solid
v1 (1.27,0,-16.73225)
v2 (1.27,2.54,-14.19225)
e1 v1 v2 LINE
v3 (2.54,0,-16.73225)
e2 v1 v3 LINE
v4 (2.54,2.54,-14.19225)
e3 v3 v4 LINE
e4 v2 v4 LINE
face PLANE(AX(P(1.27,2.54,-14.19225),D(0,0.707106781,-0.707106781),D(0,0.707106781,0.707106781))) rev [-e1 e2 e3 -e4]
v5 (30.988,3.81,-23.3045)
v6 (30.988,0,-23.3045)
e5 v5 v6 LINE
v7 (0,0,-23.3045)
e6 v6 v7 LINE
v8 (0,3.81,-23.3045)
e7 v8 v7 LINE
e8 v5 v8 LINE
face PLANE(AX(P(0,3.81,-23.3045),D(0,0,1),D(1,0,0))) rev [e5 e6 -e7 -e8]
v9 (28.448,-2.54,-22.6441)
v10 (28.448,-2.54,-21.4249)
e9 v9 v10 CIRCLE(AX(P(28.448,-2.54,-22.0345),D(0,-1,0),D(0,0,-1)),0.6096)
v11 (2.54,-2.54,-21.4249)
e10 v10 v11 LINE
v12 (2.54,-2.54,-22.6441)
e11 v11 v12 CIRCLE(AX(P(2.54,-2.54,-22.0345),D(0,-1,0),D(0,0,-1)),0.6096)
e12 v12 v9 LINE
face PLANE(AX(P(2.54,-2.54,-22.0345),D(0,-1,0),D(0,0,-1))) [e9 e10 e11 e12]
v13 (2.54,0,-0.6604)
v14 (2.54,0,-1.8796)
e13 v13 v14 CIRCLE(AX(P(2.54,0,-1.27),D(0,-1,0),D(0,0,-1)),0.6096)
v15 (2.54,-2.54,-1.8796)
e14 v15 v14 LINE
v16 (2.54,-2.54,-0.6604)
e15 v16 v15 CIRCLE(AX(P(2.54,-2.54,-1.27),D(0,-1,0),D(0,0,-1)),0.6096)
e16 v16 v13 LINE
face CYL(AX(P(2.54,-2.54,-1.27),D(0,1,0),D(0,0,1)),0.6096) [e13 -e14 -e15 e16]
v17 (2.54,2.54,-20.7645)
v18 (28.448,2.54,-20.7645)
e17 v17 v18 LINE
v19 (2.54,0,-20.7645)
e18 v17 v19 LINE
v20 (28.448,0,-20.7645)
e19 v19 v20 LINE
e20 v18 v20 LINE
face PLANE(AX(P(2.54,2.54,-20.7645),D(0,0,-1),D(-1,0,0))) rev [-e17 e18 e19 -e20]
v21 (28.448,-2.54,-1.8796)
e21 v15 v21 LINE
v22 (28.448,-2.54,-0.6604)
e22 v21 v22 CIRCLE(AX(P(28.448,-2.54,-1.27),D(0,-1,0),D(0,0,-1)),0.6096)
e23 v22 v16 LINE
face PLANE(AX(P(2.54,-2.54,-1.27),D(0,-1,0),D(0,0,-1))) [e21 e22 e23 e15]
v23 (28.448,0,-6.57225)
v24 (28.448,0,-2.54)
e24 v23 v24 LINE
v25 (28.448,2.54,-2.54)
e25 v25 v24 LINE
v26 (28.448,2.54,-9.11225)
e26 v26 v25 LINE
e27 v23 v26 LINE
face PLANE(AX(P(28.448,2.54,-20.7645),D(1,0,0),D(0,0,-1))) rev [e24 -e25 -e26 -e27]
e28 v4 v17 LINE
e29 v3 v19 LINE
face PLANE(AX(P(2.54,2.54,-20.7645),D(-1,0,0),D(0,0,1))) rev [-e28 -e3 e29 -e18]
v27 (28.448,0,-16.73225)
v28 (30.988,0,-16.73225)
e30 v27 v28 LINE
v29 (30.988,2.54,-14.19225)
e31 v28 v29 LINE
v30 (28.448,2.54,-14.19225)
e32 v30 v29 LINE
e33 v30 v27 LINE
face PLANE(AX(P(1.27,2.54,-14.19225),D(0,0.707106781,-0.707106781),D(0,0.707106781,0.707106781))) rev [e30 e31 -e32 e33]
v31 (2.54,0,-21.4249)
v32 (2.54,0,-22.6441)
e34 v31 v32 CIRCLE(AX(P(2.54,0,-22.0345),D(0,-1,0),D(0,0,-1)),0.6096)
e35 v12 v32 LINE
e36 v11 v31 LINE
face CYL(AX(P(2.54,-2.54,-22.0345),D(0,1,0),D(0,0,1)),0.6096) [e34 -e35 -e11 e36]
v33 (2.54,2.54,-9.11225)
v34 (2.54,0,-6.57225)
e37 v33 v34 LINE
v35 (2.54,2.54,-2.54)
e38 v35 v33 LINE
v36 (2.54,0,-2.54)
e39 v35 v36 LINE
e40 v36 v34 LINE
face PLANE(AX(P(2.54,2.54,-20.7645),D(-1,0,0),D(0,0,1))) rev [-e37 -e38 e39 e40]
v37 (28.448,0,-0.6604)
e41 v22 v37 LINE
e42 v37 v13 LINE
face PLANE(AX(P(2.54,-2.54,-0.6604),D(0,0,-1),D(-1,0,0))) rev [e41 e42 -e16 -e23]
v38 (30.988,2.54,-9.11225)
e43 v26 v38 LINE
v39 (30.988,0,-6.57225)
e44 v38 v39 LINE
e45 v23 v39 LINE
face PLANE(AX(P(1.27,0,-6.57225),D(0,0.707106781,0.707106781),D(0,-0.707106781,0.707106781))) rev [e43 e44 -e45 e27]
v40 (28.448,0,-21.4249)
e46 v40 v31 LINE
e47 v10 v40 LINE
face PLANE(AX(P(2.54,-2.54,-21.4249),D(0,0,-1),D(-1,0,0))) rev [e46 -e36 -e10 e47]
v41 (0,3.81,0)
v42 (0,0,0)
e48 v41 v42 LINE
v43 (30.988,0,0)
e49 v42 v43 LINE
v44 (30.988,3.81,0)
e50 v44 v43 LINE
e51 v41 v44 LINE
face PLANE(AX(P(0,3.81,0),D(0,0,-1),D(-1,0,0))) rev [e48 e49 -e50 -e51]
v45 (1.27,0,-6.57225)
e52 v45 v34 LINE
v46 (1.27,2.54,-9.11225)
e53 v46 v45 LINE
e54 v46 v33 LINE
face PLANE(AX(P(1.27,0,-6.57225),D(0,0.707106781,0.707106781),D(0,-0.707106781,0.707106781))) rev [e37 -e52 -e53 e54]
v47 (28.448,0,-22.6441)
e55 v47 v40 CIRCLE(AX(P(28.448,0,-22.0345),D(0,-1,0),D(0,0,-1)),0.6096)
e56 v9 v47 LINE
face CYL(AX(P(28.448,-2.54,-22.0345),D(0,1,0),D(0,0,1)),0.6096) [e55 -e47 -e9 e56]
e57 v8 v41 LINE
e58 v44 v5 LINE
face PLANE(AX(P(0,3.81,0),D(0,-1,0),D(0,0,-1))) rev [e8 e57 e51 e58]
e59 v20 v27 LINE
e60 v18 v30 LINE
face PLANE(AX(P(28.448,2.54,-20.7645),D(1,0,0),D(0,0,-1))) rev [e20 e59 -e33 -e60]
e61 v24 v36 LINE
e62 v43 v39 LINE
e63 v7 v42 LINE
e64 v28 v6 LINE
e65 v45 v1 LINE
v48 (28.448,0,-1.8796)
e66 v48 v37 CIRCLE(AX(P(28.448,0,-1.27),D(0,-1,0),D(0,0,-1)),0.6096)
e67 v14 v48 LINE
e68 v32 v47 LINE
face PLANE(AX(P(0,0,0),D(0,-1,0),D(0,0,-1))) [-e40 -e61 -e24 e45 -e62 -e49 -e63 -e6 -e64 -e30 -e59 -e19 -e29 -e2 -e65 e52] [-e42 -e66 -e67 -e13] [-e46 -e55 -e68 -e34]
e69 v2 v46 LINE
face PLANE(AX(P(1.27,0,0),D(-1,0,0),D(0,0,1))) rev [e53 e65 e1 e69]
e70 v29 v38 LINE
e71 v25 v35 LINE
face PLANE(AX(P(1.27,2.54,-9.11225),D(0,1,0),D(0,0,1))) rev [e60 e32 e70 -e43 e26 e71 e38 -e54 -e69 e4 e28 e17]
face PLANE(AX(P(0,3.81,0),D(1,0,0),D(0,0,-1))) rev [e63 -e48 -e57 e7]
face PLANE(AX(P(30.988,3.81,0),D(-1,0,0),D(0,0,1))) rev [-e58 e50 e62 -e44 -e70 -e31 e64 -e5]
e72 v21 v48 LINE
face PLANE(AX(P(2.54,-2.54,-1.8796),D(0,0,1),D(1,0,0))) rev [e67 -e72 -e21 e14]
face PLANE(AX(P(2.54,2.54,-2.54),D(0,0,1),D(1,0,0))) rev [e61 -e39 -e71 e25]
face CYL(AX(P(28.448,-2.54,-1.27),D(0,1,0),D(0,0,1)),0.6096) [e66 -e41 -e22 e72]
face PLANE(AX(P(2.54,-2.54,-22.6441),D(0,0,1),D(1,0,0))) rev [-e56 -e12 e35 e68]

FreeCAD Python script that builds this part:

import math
import FreeCAD as App
import Part
import Sketcher

V = App.Vector
Q = App.Units.Quantity


def add_polygon(sketch, points):
    """Adds a closed chain of lines whose ends are joined by coincident constraints."""
    first, n = sketch.GeometryCount, len(points)
    for a, b in zip(points, points[1:] + points[:1]):
        sketch.addGeometry(Part.LineSegment(App.Vector(*a, 0), App.Vector(*b, 0)), False)
    for i in range(n):
        sketch.addConstraint(Sketcher.Constraint("Coincident", first + i, 2, first + (i + 1) % n, 1))

doc = App.newDocument("Part")
body = doc.addObject("PartDesign::Body", "Body")

# Sketch on XZ plane
sketch1 = body.newObject("Sketcher::SketchObject", "Sketch")
sketch1.AttachmentSupport = (doc.getObject("XZ_Plane"), [""])
sketch1.MapMode = "FlatFace"
add_polygon(sketch1, [(0, -23.3045), (0, 0), (30.988, 0), (30.988, -23.3045)])  # lines 0-3
sketch1.addConstraint(Sketcher.Constraint("Vertical", 0))
sketch1.addConstraint(Sketcher.Constraint("Horizontal", 1))
sketch1.addConstraint(Sketcher.Constraint("Vertical", 2))
sketch1.addConstraint(Sketcher.Constraint("Horizontal", 3))
sketch1.addConstraint(Sketcher.Constraint("Coincident", 0, 2, -1, 1))
sketch1.addConstraint(Sketcher.Constraint("DistanceX", 1, 1, 1, 2, Q("1.22 in")))
sketch1.addConstraint(Sketcher.Constraint("DistanceY", 0, 1, 0, 2, Q("0.9175 in")))
pad1 = body.newObject("PartDesign::Pad", "Pad")
pad1.Profile = sketch1
pad1.Length = Q("0.15 in")
pad1.Reversed = True

# Sketch on YZ plane
sketch2 = body.newObject("Sketcher::SketchObject", "Sketch001")
sketch2.AttachmentSupport = (doc.getObject("YZ_Plane"), [""])
sketch2.MapMode = "FlatFace"
sketch2.AttachmentOffset = App.Placement(V(0, 0, 1.22 * 25.4), App.Rotation())
add_polygon(sketch2, [(2.54, -9.11225), (0, -6.57225), (0, -16.73225), (2.54, -14.19225)])  # lines 0-3
sketch2.addConstraint(Sketcher.Constraint("Vertical", 1))
sketch2.addConstraint(Sketcher.Constraint("Vertical", 3))
sketch2.addConstraint(Sketcher.Constraint("PointOnObject", 0, 2, -2))
sketch2.addConstraint(Sketcher.Constraint("Perpendicular", 0, 2))
sketch2.addConstraint(Sketcher.Constraint("Equal", 0, 2))
sketch2.addConstraint(Sketcher.Constraint("DistanceY", 1, 2, 1, 1, Q("0.4 in")))
sketch2.addConstraint(Sketcher.Constraint("DistanceY", 3, 1, 3, 2, Q("0.2 in")))
sketch2.addConstraint(Sketcher.Constraint("DistanceY", 0, 2, -1, 1, 6.57225))
pocket1 = body.newObject("PartDesign::Pocket", "Pocket")
pocket1.Profile = sketch2
pocket1.Length = Q("1.17 in")

# Sketch on XZ plane
sketch3 = body.newObject("Sketcher::SketchObject", "Sketch002")
sketch3.AttachmentSupport = (doc.getObject("XZ_Plane"), [""])
sketch3.MapMode = "FlatFace"
sketch3.addGeometry(Part.LineSegment(V(28.448, -0.6604, 0), V(2.54, -0.6604, 0)), False)
sketch3.addGeometry(Part.ArcOfCircle(Part.Circle(V(2.54, -1.27, 0), V(0, 0, 1), 0.6096), math.radians(90), math.radians(270)), False)
sketch3.addGeometry(Part.LineSegment(V(2.54, -1.8796, 0), V(28.448, -1.8796, 0)), False)
sketch3.addGeometry(Part.ArcOfCircle(Part.Circle(V(28.448, -1.27, 0), V(0, 0, 1), 0.6096), math.radians(-90), math.radians(90)), False)
sketch3.addGeometry(Part.LineSegment(V(28.448, -21.4249, 0), V(2.54, -21.4249, 0)), False)
sketch3.addGeometry(Part.ArcOfCircle(Part.Circle(V(2.54, -22.0345, 0), V(0, 0, 1), 0.6096), math.radians(90), math.radians(270)), False)
sketch3.addGeometry(Part.LineSegment(V(2.54, -22.6441, 0), V(28.448, -22.6441, 0)), False)
sketch3.addGeometry(Part.ArcOfCircle(Part.Circle(V(28.448, -22.0345, 0), V(0, 0, 1), 0.6096), math.radians(-90), math.radians(90)), False)
sketch3.addConstraint(Sketcher.Constraint("Tangent", 0, 2, 1, 1))
sketch3.addConstraint(Sketcher.Constraint("Tangent", 1, 2, 2, 1))
sketch3.addConstraint(Sketcher.Constraint("Tangent", 2, 2, 3, 1))
sketch3.addConstraint(Sketcher.Constraint("Tangent", 3, 2, 0, 1))
sketch3.addConstraint(Sketcher.Constraint("Tangent", 4, 2, 5, 1))
sketch3.addConstraint(Sketcher.Constraint("Tangent", 5, 2, 6, 1))
sketch3.addConstraint(Sketcher.Constraint("Tangent", 6, 2, 7, 1))
sketch3.addConstraint(Sketcher.Constraint("Tangent", 7, 2, 4, 1))
sketch3.addConstraint(Sketcher.Constraint("Horizontal", 0))
sketch3.addConstraint(Sketcher.Constraint("Horizontal", 2))
sketch3.addConstraint(Sketcher.Constraint("Horizontal", 4))
sketch3.addConstraint(Sketcher.Constraint("Horizontal", 6))
sketch3.addConstraint(Sketcher.Constraint("Equal", 3, 5))
sketch3.addConstraint(Sketcher.Constraint("Vertical", 1, 3, 5, 3))
sketch3.addConstraint(Sketcher.Constraint("Vertical", 3, 3, 7, 3))
sketch3.addConstraint(Sketcher.Constraint("Radius", 1, Q("0.024 in")))
sketch3.addConstraint(Sketcher.Constraint("DistanceX", 0, 2, 0, 1, Q("1.02 in")))
sketch3.addConstraint(Sketcher.Constraint("DistanceX", -1, 1, 1, 3, Q("0.1 in")))
sketch3.addConstraint(Sketcher.Constraint("DistanceY", 1, 3, -1, 1, Q("0.05 in")))
sketch3.addConstraint(Sketcher.Constraint("DistanceY", 5, 3, -1, 1, Q("0.8675 in")))
pad2 = body.newObject("PartDesign::Pad", "Pad001")
pad2.Profile = sketch3
pad2.Length = Q("0.1 in")

# Sketch on XZ plane
sketch4 = body.newObject("Sketcher::SketchObject", "Sketch003")
sketch4.AttachmentSupport = (doc.getObject("XZ_Plane"), [""])
sketch4.MapMode = "FlatFace"
add_polygon(sketch4, [(2.54, -2.54), (2.54, -20.7645), (28.448, -20.7645), (28.448, -2.54)])  # lines 0-3
sketch4.addConstraint(Sketcher.Constraint("Vertical", 0))
sketch4.addConstraint(Sketcher.Constraint("Horizontal", 1))
sketch4.addConstraint(Sketcher.Constraint("Vertical", 2))
sketch4.addConstraint(Sketcher.Constraint("Horizontal", 3))
sketch4.addConstraint(Sketcher.Constraint("DistanceX", 1, 1, 1, 2, Q("1.02 in")))
sketch4.addConstraint(Sketcher.Constraint("DistanceX", -1, 1, 0, 2, Q("0.1 in")))
sketch4.addConstraint(Sketcher.Constraint("DistanceY", 2, 2, -1, 1, Q("0.1 in")))
sketch4.addConstraint(Sketcher.Constraint("DistanceY", 0, 2, 0, 1, Q("0.7175 in")))
pocket2 = body.newObject("PartDesign::Pocket", "Pocket001")
pocket2.Profile = sketch4
pocket2.Length = Q("0.1 in")

doc.recompute()
